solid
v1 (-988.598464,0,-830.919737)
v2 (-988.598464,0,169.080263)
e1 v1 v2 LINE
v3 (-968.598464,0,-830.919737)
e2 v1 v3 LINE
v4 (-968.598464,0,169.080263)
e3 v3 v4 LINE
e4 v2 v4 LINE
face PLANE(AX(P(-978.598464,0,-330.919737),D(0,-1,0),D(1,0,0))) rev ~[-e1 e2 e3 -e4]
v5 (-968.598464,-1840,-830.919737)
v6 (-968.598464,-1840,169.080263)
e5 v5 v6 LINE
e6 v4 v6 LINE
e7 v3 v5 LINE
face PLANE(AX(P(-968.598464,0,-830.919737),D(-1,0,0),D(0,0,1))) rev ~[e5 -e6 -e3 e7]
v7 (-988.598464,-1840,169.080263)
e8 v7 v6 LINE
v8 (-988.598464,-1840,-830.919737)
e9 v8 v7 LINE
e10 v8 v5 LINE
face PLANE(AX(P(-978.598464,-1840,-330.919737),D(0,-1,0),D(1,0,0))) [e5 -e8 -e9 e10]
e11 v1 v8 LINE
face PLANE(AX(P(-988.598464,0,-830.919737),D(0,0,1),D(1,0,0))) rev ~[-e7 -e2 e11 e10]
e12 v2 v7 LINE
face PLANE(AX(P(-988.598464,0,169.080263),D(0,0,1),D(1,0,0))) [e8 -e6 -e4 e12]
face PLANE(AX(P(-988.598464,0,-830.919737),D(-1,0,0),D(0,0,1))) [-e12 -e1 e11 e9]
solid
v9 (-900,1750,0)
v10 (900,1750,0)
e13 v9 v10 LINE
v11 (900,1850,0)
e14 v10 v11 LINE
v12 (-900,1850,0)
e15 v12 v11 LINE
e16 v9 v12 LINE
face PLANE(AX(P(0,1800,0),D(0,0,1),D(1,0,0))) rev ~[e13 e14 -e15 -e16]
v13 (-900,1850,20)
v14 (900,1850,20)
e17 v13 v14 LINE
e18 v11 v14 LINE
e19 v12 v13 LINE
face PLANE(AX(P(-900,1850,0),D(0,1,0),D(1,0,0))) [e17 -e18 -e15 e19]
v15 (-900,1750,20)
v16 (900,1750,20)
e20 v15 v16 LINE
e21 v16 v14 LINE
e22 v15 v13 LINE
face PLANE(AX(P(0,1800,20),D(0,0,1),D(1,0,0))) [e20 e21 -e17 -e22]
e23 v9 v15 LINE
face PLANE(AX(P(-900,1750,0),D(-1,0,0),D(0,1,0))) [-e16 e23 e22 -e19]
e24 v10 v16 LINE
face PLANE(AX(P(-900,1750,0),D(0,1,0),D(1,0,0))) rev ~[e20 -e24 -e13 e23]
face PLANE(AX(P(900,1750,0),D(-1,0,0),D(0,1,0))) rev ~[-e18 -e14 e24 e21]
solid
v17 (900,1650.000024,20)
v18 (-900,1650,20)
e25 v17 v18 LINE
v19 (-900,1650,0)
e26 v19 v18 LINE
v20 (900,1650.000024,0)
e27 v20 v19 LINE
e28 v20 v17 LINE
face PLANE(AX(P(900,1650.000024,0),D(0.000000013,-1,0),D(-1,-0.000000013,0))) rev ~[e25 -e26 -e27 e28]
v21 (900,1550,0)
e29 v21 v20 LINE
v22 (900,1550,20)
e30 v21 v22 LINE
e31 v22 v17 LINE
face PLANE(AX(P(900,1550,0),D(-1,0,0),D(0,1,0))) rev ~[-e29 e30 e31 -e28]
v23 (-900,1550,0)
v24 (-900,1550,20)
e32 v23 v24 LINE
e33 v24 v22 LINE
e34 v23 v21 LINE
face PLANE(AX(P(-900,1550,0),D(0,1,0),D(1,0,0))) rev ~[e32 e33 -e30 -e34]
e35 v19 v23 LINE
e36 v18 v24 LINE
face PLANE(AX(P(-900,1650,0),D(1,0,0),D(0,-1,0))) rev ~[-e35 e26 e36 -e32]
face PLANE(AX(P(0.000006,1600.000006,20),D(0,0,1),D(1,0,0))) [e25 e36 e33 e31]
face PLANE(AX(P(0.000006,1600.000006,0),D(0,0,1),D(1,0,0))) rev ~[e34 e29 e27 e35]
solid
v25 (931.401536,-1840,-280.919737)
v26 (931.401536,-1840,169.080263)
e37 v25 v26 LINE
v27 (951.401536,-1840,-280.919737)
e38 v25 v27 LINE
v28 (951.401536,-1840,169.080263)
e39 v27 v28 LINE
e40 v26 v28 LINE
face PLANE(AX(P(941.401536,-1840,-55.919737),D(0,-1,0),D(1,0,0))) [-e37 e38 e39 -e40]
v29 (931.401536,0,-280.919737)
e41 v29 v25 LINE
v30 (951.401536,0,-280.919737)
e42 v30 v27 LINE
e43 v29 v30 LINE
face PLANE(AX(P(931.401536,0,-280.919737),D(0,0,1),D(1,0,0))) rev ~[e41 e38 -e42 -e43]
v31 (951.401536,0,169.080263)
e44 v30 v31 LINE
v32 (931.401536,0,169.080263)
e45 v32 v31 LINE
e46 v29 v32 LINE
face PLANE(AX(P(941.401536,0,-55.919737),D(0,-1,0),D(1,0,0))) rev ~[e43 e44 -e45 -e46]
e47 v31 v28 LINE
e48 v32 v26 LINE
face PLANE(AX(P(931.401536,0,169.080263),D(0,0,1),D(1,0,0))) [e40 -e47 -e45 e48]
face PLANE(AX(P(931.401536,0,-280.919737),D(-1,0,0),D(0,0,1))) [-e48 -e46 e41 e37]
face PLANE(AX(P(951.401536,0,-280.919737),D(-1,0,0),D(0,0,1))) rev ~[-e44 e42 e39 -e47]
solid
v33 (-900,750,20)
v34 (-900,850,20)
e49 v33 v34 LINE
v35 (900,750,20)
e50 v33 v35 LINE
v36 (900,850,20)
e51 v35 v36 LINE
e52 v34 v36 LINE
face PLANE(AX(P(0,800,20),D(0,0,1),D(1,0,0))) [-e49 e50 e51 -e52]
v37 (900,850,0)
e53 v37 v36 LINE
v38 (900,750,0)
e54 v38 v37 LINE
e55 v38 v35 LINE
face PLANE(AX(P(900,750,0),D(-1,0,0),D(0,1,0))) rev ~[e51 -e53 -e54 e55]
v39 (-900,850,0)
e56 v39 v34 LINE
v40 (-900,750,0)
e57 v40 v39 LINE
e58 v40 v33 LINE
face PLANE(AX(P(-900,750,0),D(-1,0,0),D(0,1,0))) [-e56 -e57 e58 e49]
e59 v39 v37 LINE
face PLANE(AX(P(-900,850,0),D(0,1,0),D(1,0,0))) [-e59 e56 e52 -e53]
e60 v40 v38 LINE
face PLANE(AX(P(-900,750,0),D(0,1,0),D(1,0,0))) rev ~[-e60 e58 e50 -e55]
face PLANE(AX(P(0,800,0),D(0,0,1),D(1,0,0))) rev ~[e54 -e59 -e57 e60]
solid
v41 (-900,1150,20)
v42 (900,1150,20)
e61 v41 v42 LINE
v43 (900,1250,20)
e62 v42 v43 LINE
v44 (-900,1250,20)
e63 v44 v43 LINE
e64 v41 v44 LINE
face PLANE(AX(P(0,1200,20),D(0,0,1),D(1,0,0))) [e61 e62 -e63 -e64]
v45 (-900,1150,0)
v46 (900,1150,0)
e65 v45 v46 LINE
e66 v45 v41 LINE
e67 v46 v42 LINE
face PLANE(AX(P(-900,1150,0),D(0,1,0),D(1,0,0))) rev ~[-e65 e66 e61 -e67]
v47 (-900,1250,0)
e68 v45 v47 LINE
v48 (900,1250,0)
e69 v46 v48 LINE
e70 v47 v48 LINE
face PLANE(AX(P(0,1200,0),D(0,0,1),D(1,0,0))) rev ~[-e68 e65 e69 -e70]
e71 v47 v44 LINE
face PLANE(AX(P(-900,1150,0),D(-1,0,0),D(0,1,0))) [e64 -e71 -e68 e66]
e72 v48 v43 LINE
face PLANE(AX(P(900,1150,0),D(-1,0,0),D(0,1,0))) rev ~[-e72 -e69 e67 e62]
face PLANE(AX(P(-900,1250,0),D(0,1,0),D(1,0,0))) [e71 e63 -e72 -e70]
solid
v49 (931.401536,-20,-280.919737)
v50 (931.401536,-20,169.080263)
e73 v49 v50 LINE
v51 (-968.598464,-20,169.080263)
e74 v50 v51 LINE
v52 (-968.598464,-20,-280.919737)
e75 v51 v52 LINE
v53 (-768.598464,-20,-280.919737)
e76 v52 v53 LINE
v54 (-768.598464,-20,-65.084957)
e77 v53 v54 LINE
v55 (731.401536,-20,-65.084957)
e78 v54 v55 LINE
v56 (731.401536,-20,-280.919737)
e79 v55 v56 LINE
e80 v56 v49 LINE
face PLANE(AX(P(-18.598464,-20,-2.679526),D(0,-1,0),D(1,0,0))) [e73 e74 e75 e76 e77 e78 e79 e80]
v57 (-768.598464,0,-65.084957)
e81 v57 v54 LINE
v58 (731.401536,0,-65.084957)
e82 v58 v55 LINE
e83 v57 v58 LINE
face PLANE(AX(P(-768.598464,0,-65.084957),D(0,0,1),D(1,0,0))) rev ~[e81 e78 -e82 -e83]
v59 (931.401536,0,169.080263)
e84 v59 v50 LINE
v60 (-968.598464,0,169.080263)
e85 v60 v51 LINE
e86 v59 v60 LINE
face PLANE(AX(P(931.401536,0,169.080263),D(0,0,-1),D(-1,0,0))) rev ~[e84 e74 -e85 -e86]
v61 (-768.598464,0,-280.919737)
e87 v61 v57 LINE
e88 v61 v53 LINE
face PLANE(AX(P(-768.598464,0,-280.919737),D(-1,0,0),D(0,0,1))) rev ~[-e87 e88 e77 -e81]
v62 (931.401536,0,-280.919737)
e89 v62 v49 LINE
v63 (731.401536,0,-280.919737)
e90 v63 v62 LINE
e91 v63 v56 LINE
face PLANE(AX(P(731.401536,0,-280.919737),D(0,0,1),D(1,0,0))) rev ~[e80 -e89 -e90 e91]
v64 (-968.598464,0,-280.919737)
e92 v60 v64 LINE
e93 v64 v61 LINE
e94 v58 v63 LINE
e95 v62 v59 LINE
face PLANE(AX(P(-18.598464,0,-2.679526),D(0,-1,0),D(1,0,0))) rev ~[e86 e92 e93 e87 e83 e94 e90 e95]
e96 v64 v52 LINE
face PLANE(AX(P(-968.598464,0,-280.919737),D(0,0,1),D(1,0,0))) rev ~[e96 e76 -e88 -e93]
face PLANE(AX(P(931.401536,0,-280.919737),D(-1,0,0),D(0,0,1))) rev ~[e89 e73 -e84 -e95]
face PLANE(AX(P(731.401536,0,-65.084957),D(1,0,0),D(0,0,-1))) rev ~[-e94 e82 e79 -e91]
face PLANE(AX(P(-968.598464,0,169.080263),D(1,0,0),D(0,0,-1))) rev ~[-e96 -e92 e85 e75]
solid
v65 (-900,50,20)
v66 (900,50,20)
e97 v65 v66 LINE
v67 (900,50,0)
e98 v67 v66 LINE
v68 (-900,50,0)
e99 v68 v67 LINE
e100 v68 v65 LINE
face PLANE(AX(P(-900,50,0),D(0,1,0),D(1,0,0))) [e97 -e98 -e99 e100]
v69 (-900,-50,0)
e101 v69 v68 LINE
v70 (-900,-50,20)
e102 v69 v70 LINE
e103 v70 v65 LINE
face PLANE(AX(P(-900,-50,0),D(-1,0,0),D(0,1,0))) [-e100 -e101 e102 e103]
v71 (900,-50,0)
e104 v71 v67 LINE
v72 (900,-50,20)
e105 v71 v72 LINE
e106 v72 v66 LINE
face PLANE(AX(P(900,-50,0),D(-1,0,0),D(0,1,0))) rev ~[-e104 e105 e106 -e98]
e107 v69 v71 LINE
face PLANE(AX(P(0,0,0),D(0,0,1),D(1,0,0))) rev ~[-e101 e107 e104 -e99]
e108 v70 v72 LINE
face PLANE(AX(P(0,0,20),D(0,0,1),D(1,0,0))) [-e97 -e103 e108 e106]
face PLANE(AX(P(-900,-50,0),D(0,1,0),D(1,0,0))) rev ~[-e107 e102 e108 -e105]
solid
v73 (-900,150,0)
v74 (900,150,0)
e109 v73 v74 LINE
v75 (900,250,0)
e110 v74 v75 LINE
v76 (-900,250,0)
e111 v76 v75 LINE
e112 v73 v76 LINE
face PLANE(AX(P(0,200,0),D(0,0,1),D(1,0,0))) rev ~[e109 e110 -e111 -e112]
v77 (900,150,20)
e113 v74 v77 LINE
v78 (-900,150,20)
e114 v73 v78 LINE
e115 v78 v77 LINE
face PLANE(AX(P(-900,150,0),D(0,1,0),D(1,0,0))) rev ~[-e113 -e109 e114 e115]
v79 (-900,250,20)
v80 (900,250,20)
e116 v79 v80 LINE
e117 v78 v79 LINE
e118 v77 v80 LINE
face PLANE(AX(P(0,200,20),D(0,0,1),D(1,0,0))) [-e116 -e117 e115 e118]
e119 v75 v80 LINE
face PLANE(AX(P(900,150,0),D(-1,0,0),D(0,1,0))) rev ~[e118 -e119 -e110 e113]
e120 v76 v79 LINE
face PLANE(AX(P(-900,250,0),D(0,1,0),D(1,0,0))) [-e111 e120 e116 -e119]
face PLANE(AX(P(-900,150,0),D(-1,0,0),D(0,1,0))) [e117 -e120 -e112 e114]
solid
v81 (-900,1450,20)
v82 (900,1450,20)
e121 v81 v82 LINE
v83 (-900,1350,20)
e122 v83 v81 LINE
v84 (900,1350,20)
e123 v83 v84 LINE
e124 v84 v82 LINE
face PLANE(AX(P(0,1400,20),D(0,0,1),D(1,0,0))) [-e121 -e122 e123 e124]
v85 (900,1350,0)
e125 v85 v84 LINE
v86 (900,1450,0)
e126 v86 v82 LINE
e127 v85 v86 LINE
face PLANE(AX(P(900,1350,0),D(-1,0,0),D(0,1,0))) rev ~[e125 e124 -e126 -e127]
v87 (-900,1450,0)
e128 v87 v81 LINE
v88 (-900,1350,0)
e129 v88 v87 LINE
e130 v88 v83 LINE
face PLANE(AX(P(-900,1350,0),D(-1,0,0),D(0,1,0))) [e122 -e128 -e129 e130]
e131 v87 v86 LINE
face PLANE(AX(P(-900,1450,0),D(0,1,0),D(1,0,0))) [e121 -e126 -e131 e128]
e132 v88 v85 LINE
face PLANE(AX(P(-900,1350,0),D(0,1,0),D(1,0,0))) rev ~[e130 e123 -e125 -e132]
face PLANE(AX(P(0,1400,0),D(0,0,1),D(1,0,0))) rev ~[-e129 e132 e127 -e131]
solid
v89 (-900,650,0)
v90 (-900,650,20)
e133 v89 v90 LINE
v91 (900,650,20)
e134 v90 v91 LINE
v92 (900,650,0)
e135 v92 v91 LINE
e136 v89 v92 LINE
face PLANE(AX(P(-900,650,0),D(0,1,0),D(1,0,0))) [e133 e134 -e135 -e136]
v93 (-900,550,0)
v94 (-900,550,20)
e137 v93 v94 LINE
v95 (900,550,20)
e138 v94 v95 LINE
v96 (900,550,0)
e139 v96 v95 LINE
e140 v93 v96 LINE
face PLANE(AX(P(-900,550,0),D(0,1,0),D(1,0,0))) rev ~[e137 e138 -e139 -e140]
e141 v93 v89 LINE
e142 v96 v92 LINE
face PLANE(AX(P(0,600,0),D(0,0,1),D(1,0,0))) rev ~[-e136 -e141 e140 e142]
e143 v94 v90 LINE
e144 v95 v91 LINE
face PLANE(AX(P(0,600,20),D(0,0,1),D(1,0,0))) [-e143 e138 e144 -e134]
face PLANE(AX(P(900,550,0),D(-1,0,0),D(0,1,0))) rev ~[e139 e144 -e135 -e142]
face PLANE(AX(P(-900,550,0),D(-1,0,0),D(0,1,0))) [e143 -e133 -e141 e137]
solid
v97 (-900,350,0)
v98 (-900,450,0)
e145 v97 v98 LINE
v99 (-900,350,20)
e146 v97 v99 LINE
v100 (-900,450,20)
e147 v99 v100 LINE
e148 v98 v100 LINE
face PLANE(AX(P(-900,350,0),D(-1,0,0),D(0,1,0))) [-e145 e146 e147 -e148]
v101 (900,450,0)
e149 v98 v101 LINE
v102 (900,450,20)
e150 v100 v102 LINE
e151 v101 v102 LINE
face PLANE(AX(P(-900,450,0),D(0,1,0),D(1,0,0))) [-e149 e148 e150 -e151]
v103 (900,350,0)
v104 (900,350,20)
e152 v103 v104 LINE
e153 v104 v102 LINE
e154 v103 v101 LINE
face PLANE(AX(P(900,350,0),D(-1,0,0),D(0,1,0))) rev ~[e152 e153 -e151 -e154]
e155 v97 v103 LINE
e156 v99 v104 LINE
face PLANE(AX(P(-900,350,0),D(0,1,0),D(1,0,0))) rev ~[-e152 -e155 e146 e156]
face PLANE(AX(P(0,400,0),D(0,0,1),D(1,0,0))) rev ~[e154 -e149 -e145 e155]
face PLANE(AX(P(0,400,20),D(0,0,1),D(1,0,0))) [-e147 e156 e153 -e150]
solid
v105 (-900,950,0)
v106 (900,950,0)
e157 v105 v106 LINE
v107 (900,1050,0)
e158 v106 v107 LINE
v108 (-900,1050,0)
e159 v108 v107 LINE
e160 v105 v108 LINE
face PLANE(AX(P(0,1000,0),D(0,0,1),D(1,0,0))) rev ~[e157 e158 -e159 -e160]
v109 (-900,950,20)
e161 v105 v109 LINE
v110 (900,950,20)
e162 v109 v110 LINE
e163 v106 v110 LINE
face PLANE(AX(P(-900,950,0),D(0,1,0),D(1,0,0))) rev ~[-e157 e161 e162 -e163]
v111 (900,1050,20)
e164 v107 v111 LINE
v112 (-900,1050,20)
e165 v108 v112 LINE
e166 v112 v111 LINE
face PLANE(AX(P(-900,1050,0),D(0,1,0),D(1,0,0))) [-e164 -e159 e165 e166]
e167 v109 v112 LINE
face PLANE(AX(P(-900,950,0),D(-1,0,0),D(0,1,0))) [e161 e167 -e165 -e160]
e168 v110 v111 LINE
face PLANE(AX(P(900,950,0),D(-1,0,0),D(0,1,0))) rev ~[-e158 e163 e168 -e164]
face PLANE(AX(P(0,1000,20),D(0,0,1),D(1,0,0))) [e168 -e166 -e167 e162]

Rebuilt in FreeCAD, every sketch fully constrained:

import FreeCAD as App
import Part
import Sketcher

V = App.Vector
Q = App.Units.Quantity


def add_polygon(sketch, points):
    """Adds a closed chain of lines whose ends are joined by coincident constraints."""
    first, n = sketch.GeometryCount, len(points)
    for a, b in zip(points, points[1:] + points[:1]):
        sketch.addGeometry(Part.LineSegment(App.Vector(*a, 0), App.Vector(*b, 0)), False)
    for i in range(n):
        sketch.addConstraint(Sketcher.Constraint("Coincident", first + i, 2, first + (i + 1) % n, 1))

doc = App.newDocument("Part")
body = doc.addObject("PartDesign::Body", "Body")

# Sketch on XZ plane
sketch1 = body.newObject("Sketcher::SketchObject", "Sketch")
sketch1.AttachmentSupport = (doc.getObject("XZ_Plane"), [""])
sketch1.MapMode = "FlatFace"
add_polygon(sketch1, [(931, 169), (-969, 169), (-969, -281), (-769, -281), (-769, -65), (731, -65), (731, -281), (931, -281)])  # lines 0-7
sketch1.addConstraint(Sketcher.Constraint("Horizontal", 0))
sketch1.addConstraint(Sketcher.Constraint("Vertical", 1))
sketch1.addConstraint(Sketcher.Constraint("Horizontal", 2))
sketch1.addConstraint(Sketcher.Constraint("Vertical", 3))
sketch1.addConstraint(Sketcher.Constraint("Horizontal", 4))
sketch1.addConstraint(Sketcher.Constraint("Vertical", 5))
sketch1.addConstraint(Sketcher.Constraint("Horizontal", 6))
sketch1.addConstraint(Sketcher.Constraint("Vertical", 7))
sketch1.addConstraint(Sketcher.Constraint("Horizontal", 2, 2, 5, 2))
sketch1.addConstraint(Sketcher.Constraint("Equal", 2, 6))
sketch1.addConstraint(Sketcher.Constraint("DistanceX", 0, 2, 0, 1, Q("1900 mm")))
sketch1.addConstraint(Sketcher.Constraint("DistanceX", 2, 1, 2, 2, Q("200 mm")))
sketch1.addConstraint(Sketcher.Constraint("DistanceY", 1, 2, 1, 1, Q("450 mm")))
sketch1.addConstraint(Sketcher.Constraint("DistanceY", 3, 1, 3, 2, Q("215.83478 mm")))
sketch1.addConstraint(Sketcher.Constraint("DistanceX", 0, 2, -1, 1, Q("968.598464 mm")))
sketch1.addConstraint(Sketcher.Constraint("DistanceY", -1, 1, 0, 2, Q("169.080263 mm")))
pad1 = body.newObject("PartDesign::Pad", "Pad")
pad1.Profile = sketch1
pad1.Length = 20
body2 = doc.addObject("PartDesign::Body", "Body001")
body2.AllowCompound = True

# Sketch on XY plane
sketch2 = body2.newObject("Sketcher::SketchObject", "Sketch001")
sketch2.AttachmentSupport = (doc.getObject("XY_Plane001"), [""])
sketch2.MapMode = "FlatFace"
add_polygon(sketch2, [(-900, 1850), (-900, 1750), (900, 1750), (900, 1850)])  # lines 0-3
add_polygon(sketch2, [(-900, 1550), (900, 1550), (900, 1650.000024), (-900, 1650)])  # lines 4-7
add_polygon(sketch2, [(-900, 1450), (-900, 1350), (900, 1350), (900, 1450)])  # lines 8-11
add_polygon(sketch2, [(-900, 1250), (-900, 1150), (900, 1150), (900, 1250)])  # lines 12-15
add_polygon(sketch2, [(-900, 1050), (-900, 950), (900, 950), (900, 1050)])  # lines 16-19
add_polygon(sketch2, [(-900, 850), (-900, 750), (900, 750), (900, 850)])  # lines 20-23
add_polygon(sketch2, [(-900, 650), (-900, 550), (900, 550), (900, 650)])  # lines 24-27
add_polygon(sketch2, [(-900, 450), (-900, 350), (900, 350), (900, 450)])  # lines 28-31
add_polygon(sketch2, [(-900, 250), (-900, 150), (900, 150), (900, 250)])  # lines 32-35
add_polygon(sketch2, [(-900, 50), (-900, -50), (900, -50), (900, 50)])  # lines 36-39
sketch2.addConstraint(Sketcher.Constraint("Vertical", 0))
sketch2.addConstraint(Sketcher.Constraint("Horizontal", 1))
sketch2.addConstraint(Sketcher.Constraint("Vertical", 2))
sketch2.addConstraint(Sketcher.Constraint("Horizontal", 3))
sketch2.addConstraint(Sketcher.Constraint("Horizontal", 4))
sketch2.addConstraint(Sketcher.Constraint("Vertical", 5))
sketch2.addConstraint(Sketcher.Constraint("Vertical", 7))
sketch2.addConstraint(Sketcher.Constraint("Vertical", 8))
sketch2.addConstraint(Sketcher.Constraint("Horizontal", 9))
sketch2.addConstraint(Sketcher.Constraint("Vertical", 10))
sketch2.addConstraint(Sketcher.Constraint("Horizontal", 11))
sketch2.addConstraint(Sketcher.Constraint("Vertical", 12))
sketch2.addConstraint(Sketcher.Constraint("Horizontal", 13))
sketch2.addConstraint(Sketcher.Constraint("Vertical", 14))
sketch2.addConstraint(Sketcher.Constraint("Horizontal", 15))
sketch2.addConstraint(Sketcher.Constraint("Vertical", 16))
sketch2.addConstraint(Sketcher.Constraint("Horizontal", 17))
sketch2.addConstraint(Sketcher.Constraint("Vertical", 18))
sketch2.addConstraint(Sketcher.Constraint("Horizontal", 19))
sketch2.addConstraint(Sketcher.Constraint("Vertical", 20))
sketch2.addConstraint(Sketcher.Constraint("Horizontal", 21))
sketch2.addConstraint(Sketcher.Constraint("Vertical", 22))
sketch2.addConstraint(Sketcher.Constraint("Horizontal", 23))
sketch2.addConstraint(Sketcher.Constraint("Vertical", 24))
sketch2.addConstraint(Sketcher.Constraint("Horizontal", 25))
sketch2.addConstraint(Sketcher.Constraint("Vertical", 26))
sketch2.addConstraint(Sketcher.Constraint("Horizontal", 27))
sketch2.addConstraint(Sketcher.Constraint("Vertical", 28))
sketch2.addConstraint(Sketcher.Constraint("Horizontal", 29))
sketch2.addConstraint(Sketcher.Constraint("Vertical", 30))
sketch2.addConstraint(Sketcher.Constraint("Horizontal", 31))
sketch2.addConstraint(Sketcher.Constraint("Vertical", 32))
sketch2.addConstraint(Sketcher.Constraint("Horizontal", 33))
sketch2.addConstraint(Sketcher.Constraint("Vertical", 34))
sketch2.addConstraint(Sketcher.Constraint("Horizontal", 35))
sketch2.addConstraint(Sketcher.Constraint("Vertical", 36))
sketch2.addConstraint(Sketcher.Constraint("Horizontal", 37))
sketch2.addConstraint(Sketcher.Constraint("Vertical", 38))
sketch2.addConstraint(Sketcher.Constraint("Horizontal", 39))
sketch2.addConstraint(Sketcher.Constraint("Symmetric", 36, 2, 38, 2, -1, 1))
sketch2.addConstraint(Sketcher.Constraint("Vertical", 2, 2, 4, 2))
sketch2.addConstraint(Sketcher.Constraint("Vertical", 3, 2, 6, 2))
sketch2.addConstraint(Sketcher.Constraint("Vertical", 7, 2, 8, 2))
sketch2.addConstraint(Sketcher.Constraint("Vertical", 5, 2, 9, 2))
sketch2.addConstraint(Sketcher.Constraint("Vertical", 11, 2, 12, 2))
sketch2.addConstraint(Sketcher.Constraint("Vertical", 10, 2, 13, 2))
sketch2.addConstraint(Sketcher.Constraint("Vertical", 15, 2, 16, 2))
sketch2.addConstraint(Sketcher.Constraint("Vertical", 14, 2, 17, 2))
sketch2.addConstraint(Sketcher.Constraint("Vertical", 19, 2, 20, 2))
sketch2.addConstraint(Sketcher.Constraint("Vertical", 18, 2, 21, 2))
sketch2.addConstraint(Sketcher.Constraint("Vertical", 23, 2, 24, 2))
sketch2.addConstraint(Sketcher.Constraint("Vertical", 22, 2, 25, 2))
sketch2.addConstraint(Sketcher.Constraint("Vertical", 27, 2, 28, 2))
sketch2.addConstraint(Sketcher.Constraint("Vertical", 26, 2, 29, 2))
sketch2.addConstraint(Sketcher.Constraint("Vertical", 31, 2, 32, 2))
sketch2.addConstraint(Sketcher.Constraint("Vertical", 30, 2, 33, 2))
sketch2.addConstraint(Sketcher.Constraint("Vertical", 35, 2, 36, 2))
sketch2.addConstraint(Sketcher.Constraint("Vertical", 34, 2, 37, 2))
sketch2.addConstraint(Sketcher.Constraint("Equal", 2, 7))
sketch2.addConstraint(Sketcher.Constraint("Equal", 7, 8))
sketch2.addConstraint(Sketcher.Constraint("Equal", 10, 12))
sketch2.addConstraint(Sketcher.Constraint("Equal", 14, 16))
sketch2.addConstraint(Sketcher.Constraint("Equal", 18, 20))
sketch2.addConstraint(Sketcher.Constraint("Equal", 22, 24))
sketch2.addConstraint(Sketcher.Constraint("Equal", 26, 28))
sketch2.addConstraint(Sketcher.Constraint("Equal", 30, 32))
sketch2.addConstraint(Sketcher.Constraint("Equal", 34, 36))
sketch2.addConstraint(Sketcher.Constraint("DistanceX", 1, 1, 1, 2, Q("1800 mm")))
sketch2.addConstraint(Sketcher.Constraint("DistanceY", 0, 2, 0, 1, Q("100 mm")))
sketch2.addConstraint(Sketcher.Constraint("Angle", 6, Q("-179.999999 deg")))
sketch2.addConstraint(Sketcher.Constraint("DistanceY", -1, 1, 0, 2, Q("1750 mm")))
sketch2.addConstraint(Sketcher.Constraint("DistanceY", -1, 1, 4, 2, Q("1550 mm")))
sketch2.addConstraint(Sketcher.Constraint("DistanceY", -1, 1, 8, 2, Q("1350 mm")))
sketch2.addConstraint(Sketcher.Constraint("DistanceY", -1, 1, 12, 2, Q("1150 mm")))
sketch2.addConstraint(Sketcher.Constraint("DistanceY", -1, 1, 16, 2, Q("950 mm")))
sketch2.addConstraint(Sketcher.Constraint("DistanceY", -1, 1, 20, 2, Q("750 mm")))
sketch2.addConstraint(Sketcher.Constraint("DistanceY", -1, 1, 24, 2, Q("550 mm")))
sketch2.addConstraint(Sketcher.Constraint("DistanceY", -1, 1, 28, 2, Q("350 mm")))
sketch2.addConstraint(Sketcher.Constraint("DistanceY", -1, 1, 32, 2, Q("150 mm")))
pad2 = body2.newObject("PartDesign::Pad", "Pad001")
pad2.Profile = sketch2
pad2.Length = 20
body3 = doc.addObject("PartDesign::Body", "Body002")
body3.AllowCompound = True

# Sketch on XZ plane
sketch3 = body3.newObject("Sketcher::SketchObject", "Sketch002")
sketch3.AttachmentSupport = (doc.getObject("XZ_Plane002"), [""])
sketch3.MapMode = "FlatFace"
add_polygon(sketch3, [(-989, 169), (-989, -831), (-969, -831), (-969, 169)])  # lines 0-3
add_polygon(sketch3, [(931, 169), (931, -281), (951, -281), (951, 169)])  # lines 4-7
sketch3.addConstraint(Sketcher.Constraint("Vertical", 0))
sketch3.addConstraint(Sketcher.Constraint("Horizontal", 1))
sketch3.addConstraint(Sketcher.Constraint("Vertical", 2))
sketch3.addConstraint(Sketcher.Constraint("Horizontal", 3))
sketch3.addConstraint(Sketcher.Constraint("Vertical", 4))
sketch3.addConstraint(Sketcher.Constraint("Horizontal", 5))
sketch3.addConstraint(Sketcher.Constraint("Vertical", 6))
sketch3.addConstraint(Sketcher.Constraint("Horizontal", 7))
sketch3.addConstraint(Sketcher.Constraint("Horizontal", 3, 2, 6, 2))
sketch3.addConstraint(Sketcher.Constraint("Equal", 3, 5))
sketch3.addConstraint(Sketcher.Constraint("DistanceX", 1, 1, 1, 2, Q("20 mm")))
sketch3.addConstraint(Sketcher.Constraint("DistanceY", 0, 2, 0, 1, Q("1000 mm")))
sketch3.addConstraint(Sketcher.Constraint("DistanceY", 4, 2, 4, 1, Q("450 mm")))
sketch3.addConstraint(Sketcher.Constraint("DistanceX", 2, 2, 4, 2, Q("1900 mm")))
sketch3.addConstraint(Sketcher.Constraint("DistanceX", 0, 2, -1, 1, Q("988.598464 mm")))
sketch3.addConstraint(Sketcher.Constraint("DistanceY", 0, 2, -1, 1, Q("830.919737 mm")))
pad3 = body3.newObject("PartDesign::Pad", "Pad002")
pad3.Profile = sketch3
pad3.Length = 1840

doc.recompute()
